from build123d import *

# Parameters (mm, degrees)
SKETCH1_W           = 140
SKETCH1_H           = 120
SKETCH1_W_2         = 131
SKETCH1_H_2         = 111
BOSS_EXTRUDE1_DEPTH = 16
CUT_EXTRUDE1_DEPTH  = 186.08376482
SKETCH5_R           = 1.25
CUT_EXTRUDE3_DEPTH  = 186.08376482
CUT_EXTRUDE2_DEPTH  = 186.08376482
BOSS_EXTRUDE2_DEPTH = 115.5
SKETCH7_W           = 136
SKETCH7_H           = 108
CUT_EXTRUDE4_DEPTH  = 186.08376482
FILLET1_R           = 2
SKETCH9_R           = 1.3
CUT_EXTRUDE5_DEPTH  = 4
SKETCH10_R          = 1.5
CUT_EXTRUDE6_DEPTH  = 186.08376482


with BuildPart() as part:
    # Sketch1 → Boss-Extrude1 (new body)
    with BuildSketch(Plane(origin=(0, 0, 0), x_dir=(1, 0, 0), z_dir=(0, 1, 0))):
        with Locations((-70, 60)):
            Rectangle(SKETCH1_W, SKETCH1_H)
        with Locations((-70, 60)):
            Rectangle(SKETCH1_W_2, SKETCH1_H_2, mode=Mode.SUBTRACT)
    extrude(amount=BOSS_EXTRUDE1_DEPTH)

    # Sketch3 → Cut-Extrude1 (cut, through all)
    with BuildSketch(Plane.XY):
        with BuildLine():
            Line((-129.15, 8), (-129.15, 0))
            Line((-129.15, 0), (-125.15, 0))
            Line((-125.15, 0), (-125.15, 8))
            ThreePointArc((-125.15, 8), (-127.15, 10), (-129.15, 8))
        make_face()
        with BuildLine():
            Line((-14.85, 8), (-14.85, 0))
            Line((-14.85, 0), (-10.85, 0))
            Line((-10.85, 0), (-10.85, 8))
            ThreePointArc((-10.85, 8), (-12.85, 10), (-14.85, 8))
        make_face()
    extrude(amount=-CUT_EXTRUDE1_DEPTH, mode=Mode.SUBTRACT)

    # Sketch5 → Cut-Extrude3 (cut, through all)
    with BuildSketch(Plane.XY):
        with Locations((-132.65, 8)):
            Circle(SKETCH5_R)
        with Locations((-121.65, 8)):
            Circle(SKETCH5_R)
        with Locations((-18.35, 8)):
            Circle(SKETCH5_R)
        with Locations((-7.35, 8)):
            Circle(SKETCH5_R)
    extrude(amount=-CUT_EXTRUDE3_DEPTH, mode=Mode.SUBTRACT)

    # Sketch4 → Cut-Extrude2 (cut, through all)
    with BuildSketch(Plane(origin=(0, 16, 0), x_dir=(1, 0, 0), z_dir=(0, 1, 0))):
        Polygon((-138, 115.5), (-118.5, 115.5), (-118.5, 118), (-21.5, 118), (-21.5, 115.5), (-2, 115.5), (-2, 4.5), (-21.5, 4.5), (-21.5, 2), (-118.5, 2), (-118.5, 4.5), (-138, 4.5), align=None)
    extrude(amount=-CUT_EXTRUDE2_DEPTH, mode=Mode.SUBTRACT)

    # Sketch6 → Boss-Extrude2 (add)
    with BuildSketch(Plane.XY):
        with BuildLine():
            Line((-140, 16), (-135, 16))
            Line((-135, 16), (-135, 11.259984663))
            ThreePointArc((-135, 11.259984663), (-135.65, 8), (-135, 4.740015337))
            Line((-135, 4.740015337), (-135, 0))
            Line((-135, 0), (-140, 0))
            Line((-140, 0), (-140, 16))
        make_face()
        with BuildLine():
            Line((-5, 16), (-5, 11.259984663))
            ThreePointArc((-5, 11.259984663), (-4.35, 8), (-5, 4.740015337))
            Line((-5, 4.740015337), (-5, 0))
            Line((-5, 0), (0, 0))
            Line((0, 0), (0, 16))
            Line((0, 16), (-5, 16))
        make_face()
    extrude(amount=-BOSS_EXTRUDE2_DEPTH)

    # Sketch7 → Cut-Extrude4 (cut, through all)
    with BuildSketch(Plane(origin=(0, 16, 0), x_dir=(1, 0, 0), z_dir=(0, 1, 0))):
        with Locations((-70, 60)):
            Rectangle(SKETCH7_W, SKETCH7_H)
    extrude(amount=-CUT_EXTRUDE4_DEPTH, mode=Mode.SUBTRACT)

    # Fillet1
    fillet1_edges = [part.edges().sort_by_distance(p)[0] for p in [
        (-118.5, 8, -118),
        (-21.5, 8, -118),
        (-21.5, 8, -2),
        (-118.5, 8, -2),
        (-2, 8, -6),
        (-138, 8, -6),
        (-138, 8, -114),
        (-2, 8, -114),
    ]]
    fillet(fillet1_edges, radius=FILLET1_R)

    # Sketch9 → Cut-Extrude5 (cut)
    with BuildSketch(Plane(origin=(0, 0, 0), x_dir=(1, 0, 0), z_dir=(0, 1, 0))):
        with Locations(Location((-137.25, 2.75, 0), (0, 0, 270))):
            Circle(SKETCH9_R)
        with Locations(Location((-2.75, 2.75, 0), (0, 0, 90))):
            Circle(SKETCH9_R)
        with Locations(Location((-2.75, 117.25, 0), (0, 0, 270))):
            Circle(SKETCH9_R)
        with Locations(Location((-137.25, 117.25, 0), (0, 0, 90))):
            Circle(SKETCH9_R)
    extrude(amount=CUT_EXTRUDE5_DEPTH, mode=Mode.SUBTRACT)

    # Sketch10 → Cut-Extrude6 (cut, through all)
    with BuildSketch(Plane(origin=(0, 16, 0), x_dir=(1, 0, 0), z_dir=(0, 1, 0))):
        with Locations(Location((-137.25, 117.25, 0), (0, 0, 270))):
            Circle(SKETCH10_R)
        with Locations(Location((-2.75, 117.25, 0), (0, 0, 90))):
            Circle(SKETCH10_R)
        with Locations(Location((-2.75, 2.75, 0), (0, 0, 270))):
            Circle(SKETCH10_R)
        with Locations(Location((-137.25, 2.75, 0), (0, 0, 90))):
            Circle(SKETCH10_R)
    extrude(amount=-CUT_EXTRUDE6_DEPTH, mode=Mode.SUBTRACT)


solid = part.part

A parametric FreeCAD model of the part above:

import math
import FreeCAD as App
import Part
import Sketcher

V = App.Vector
Q = App.Units.Quantity


def edges_at(feature, points):
    """Names of the edges that pass closest to the given points."""
    edges = feature.Shape.Edges
    near = lambda p: min(range(len(edges)), key=lambda i: edges[i].distToShape(Part.Vertex(*p))[0])
    return sorted({f"Edge{near(p) + 1}" for p in points})


def add_polygon(sketch, points):
    """Adds a closed chain of lines whose ends are joined by coincident constraints."""
    first, n = sketch.GeometryCount, len(points)
    for a, b in zip(points, points[1:] + points[:1]):
        sketch.addGeometry(Part.LineSegment(App.Vector(*a, 0), App.Vector(*b, 0)), False)
    for i in range(n):
        sketch.addConstraint(Sketcher.Constraint("Coincident", first + i, 2, first + (i + 1) % n, 1))

doc = App.newDocument("Part")
body = doc.addObject("PartDesign::Body", "Body")

# Sketch on XZ plane
sketch1 = body.newObject("Sketcher::SketchObject", "Sketch")
sketch1.AttachmentSupport = (doc.getObject("XZ_Plane"), [""])
sketch1.MapMode = "FlatFace"
add_polygon(sketch1, [(-140, -120), (-140, 0), (0, 0), (0, -120)])  # lines 0-3
add_polygon(sketch1, [(-4, -4), (-136, -4), (-136, -116), (-4, -116)])  # lines 4-7
sketch1.addConstraint([
    Sketcher.Constraint("Vertical", 0),
    Sketcher.Constraint("Horizontal", 1),
    Sketcher.Constraint("Vertical", 2),
    Sketcher.Constraint("Horizontal", 3),
    Sketcher.Constraint("Horizontal", 4),
    Sketcher.Constraint("Vertical", 5),
    Sketcher.Constraint("Horizontal", 6),
    Sketcher.Constraint("Vertical", 7),
    Sketcher.Constraint("Coincident", 1, 2, -1, 1),
    Sketcher.Constraint("DistanceX", 1, 1, 1, 2, Q("140 mm")),
    Sketcher.Constraint("DistanceX", 4, 2, 4, 1, Q("131 mm")),
    Sketcher.Constraint("DistanceY", 0, 1, 0, 2, Q("120 mm")),
    Sketcher.Constraint("DistanceY", 5, 2, 5, 1, Q("111 mm")),
    Sketcher.Constraint("DistanceX", 4, 2, -1, 1, Q("135.5 mm")),
    Sketcher.Constraint("DistanceY", 4, 2, -1, 1, Q("4.5 mm")),
])
pad1 = body.newObject("PartDesign::Pad", "Pad")
pad1.Profile = sketch1
pad1.Length = 16
pad1.Reversed = True

# Sketch on XY plane
sketch2 = body.newObject("Sketcher::SketchObject", "Sketch001")
sketch2.AttachmentSupport = (doc.getObject("XY_Plane"), [""])
sketch2.MapMode = "FlatFace"
sketch2.addGeometry([
    Part.LineSegment(V(-129.2, 8, 0), V(-129.2, 0, 0)),  # 0
    Part.LineSegment(V(-129.2, 0, 0), V(-125.2, 0, 0)),  # 1
    Part.LineSegment(V(-125.2, 0, 0), V(-125.2, 8, 0)),  # 2
    Part.ArcOfCircle(Part.Circle(V(-127.2, 8, 0), V(0, 0, 1), 2), math.radians(0), math.radians(180)),  # 3
    Part.LineSegment(V(-14.8, 8, 0), V(-14.8, 0, 0)),  # 4
    Part.LineSegment(V(-14.8, 0, 0), V(-10.8, 0, 0)),  # 5
    Part.LineSegment(V(-10.8, 0, 0), V(-10.8, 8, 0)),  # 6
    Part.ArcOfCircle(Part.Circle(V(-12.8, 8, 0), V(0, 0, 1), 2), math.radians(0), math.radians(180)),  # 7
], False)
sketch2.addConstraint([
    Sketcher.Constraint("Coincident", 0, 2, 1, 1),
    Sketcher.Constraint("Coincident", 1, 2, 2, 1),
    Sketcher.Constraint("Tangent", 2, 2, 3, 1),
    Sketcher.Constraint("Tangent", 3, 2, 0, 1),
    Sketcher.Constraint("Coincident", 4, 2, 5, 1),
    Sketcher.Constraint("Coincident", 5, 2, 6, 1),
    Sketcher.Constraint("Tangent", 6, 2, 7, 1),
    Sketcher.Constraint("Tangent", 7, 2, 4, 1),
    Sketcher.Constraint("Vertical", 0),
    Sketcher.Constraint("Horizontal", 1),
    Sketcher.Constraint("Vertical", 2),
    Sketcher.Constraint("Vertical", 4),
    Sketcher.Constraint("Horizontal", 5),
    Sketcher.Constraint("Vertical", 6),
    Sketcher.Constraint("Equal", 3, 7),
    Sketcher.Constraint("PointOnObject", 0, 2, -1),
    Sketcher.Constraint("PointOnObject", 4, 2, -1),
    Sketcher.Constraint("Horizontal", 3, 3, 7, 3),
    Sketcher.Constraint("Radius", 3, Q("2 mm")),
    Sketcher.Constraint("DistanceY", 0, 2, 0, 1, Q("8 mm")),
    Sketcher.Constraint("DistanceX", 3, 3, 7, 3, Q("114.3 mm")),
    Sketcher.Constraint("DistanceX", 3, 3, -1, 1, Q("127.15 mm")),
])
pocket1 = body.newObject("PartDesign::Pocket", "Pocket")
pocket1.Profile = sketch2
pocket1.Type = "ThroughAll"

# Sketch on XY plane
sketch3 = body.newObject("Sketcher::SketchObject", "Sketch002")
sketch3.AttachmentSupport = (doc.getObject("XY_Plane"), [""])
sketch3.MapMode = "FlatFace"
sketch3.addGeometry([
    Part.Circle(V(-132.7, 8, 0), V(0, 0, 1), 1.2),
    Part.Circle(V(-121.7, 8, 0), V(0, 0, 1), 1.2),
    Part.Circle(V(-18.4, 8, 0), V(0, 0, 1), 1.2),
    Part.Circle(V(-7.3, 8, 0), V(0, 0, 1), 1.2),
], False)
sketch3.addConstraint([
    Sketcher.Constraint("Equal", 0, 1),
    Sketcher.Constraint("Equal", 1, 2),
    Sketcher.Constraint("Equal", 2, 3),
    Sketcher.Constraint("Horizontal", 0, 3, 1, 3),
    Sketcher.Constraint("Horizontal", 1, 3, 2, 3),
    Sketcher.Constraint("Horizontal", 2, 3, 3, 3),
    Sketcher.Constraint("Diameter", 0, Q("2.5 mm")),
    Sketcher.Constraint("DistanceY", -1, 1, 0, 3, Q("8 mm")),
    Sketcher.Constraint("DistanceX", 0, 3, 1, 3, Q("11 mm")),
    Sketcher.Constraint("DistanceX", 2, 3, 3, 3, Q("11 mm")),
    Sketcher.Constraint("DistanceX", 1, 3, 2, 3, Q("103.3 mm")),
    Sketcher.Constraint("DistanceX", 0, 3, -1, 1, Q("132.65 mm")),
])
pocket2 = body.newObject("PartDesign::Pocket", "Pocket001")
pocket2.Profile = sketch3
pocket2.Type = "ThroughAll"

# Sketch on XZ plane
sketch4 = body.newObject("Sketcher::SketchObject", "Sketch003")
sketch4.AttachmentSupport = (doc.getObject("XZ_Plane"), [""])
sketch4.MapMode = "FlatFace"
sketch4.AttachmentOffset = App.Placement(V(0, 0, -16), App.Rotation())
add_polygon(sketch4, [(-118.5, -115.5), (-138, -115.5), (-138, -4.5), (-118.5, -4.5), (-118.5, -2), (-21.5, -2), (-21.5, -4.5), (-2, -4.5), (-2, -115.5), (-21.5, -115.5), (-21.5, -118), (-118.5, -118)])  # lines 0-11
sketch4.addConstraint([
    Sketcher.Constraint("Horizontal", 0),
    Sketcher.Constraint("Vertical", 1),
    Sketcher.Constraint("Horizontal", 2),
    Sketcher.Constraint("Vertical", 3),
    Sketcher.Constraint("Horizontal", 4),
    Sketcher.Constraint("Vertical", 5),
    Sketcher.Constraint("Horizontal", 6),
    Sketcher.Constraint("Vertical", 7),
    Sketcher.Constraint("Horizontal", 8),
    Sketcher.Constraint("Vertical", 9),
    Sketcher.Constraint("Horizontal", 10),
    Sketcher.Constraint("Vertical", 11),
    Sketcher.Constraint("Horizontal", 2, 2, 5, 2),
    Sketcher.Constraint("Horizontal", 0, 2, 7, 2),
    Sketcher.Constraint("Vertical", 5, 2, 8, 2),
    Sketcher.Constraint("Vertical", 3, 2, 10, 2),
    Sketcher.Constraint("Equal", 2, 6),
    Sketcher.Constraint("Equal", 5, 9),
    Sketcher.Constraint("DistanceX", 4, 1, 4, 2, Q("97 mm")),
    Sketcher.Constraint("DistanceY", 1, 1, 1, 2, Q("111 mm")),
    Sketcher.Constraint("DistanceX", 0, 2, 0, 1, Q("19.5 mm")),
    Sketcher.Constraint("DistanceY", 3, 1, 3, 2, Q("2.5 mm")),
    Sketcher.Constraint("DistanceX", 0, 2, -1, 1, Q("138 mm")),
    Sketcher.Constraint("DistanceY", 3, 2, -1, 1, Q("2 mm")),
])
pocket3 = body.newObject("PartDesign::Pocket", "Pocket002")
pocket3.Profile = sketch4
pocket3.Type = "ThroughAll"
pocket3.Reversed = True

# Sketch on XY plane
sketch5 = body.newObject("Sketcher::SketchObject", "Sketch004")
sketch5.AttachmentSupport = (doc.getObject("XY_Plane"), [""])
sketch5.MapMode = "FlatFace"
sketch5.addGeometry([
    Part.LineSegment(V(-135, 16, 0), V(-140, 16, 0)),  # 0
    Part.LineSegment(V(-140, 16, 0), V(-140, 0, 0)),  # 1
    Part.LineSegment(V(-140, 0, 0), V(-135, 0, 0)),  # 2
    Part.LineSegment(V(-135, 0, 0), V(-135, 4.7, 0)),  # 3
    Part.ArcOfCircle(Part.Circle(V(-127.1, 8, 0), V(0, 0, 1), 8.5), math.radians(157), math.radians(203)),  # 4
    Part.LineSegment(V(-135, 11.3, 0), V(-135, 16, 0)),  # 5
    Part.LineSegment(V(-5, 16, 0), V(-5, 11.3, 0)),  # 6
    Part.ArcOfCircle(Part.Circle(V(-12.9, 8, 0), V(0, 0, 1), 8.5), math.radians(-23), math.radians(23)),  # 7
    Part.LineSegment(V(-5, 4.7, 0), V(-5, 0, 0)),  # 8
    Part.LineSegment(V(-5, 0, 0), V(0, 0, 0)),  # 9
    Part.LineSegment(V(0, 0, 0), V(0, 16, 0)),  # 10
    Part.LineSegment(V(0, 16, 0), V(-5, 16, 0)),  # 11
], False)
sketch5.addConstraint([
    Sketcher.Constraint("Coincident", 0, 2, 1, 1),
    Sketcher.Constraint("Coincident", 1, 2, 2, 1),
    Sketcher.Constraint("Coincident", 2, 2, 3, 1),
    Sketcher.Constraint("Coincident", 3, 2, 4, 2),
    Sketcher.Constraint("Coincident", 4, 1, 5, 1),
    Sketcher.Constraint("Coincident", 5, 2, 0, 1),
    Sketcher.Constraint("Coincident", 6, 2, 7, 2),
    Sketcher.Constraint("Coincident", 7, 1, 8, 1),
    Sketcher.Constraint("Coincident", 8, 2, 9, 1),
    Sketcher.Constraint("Coincident", 9, 2, 10, 1),
    Sketcher.Constraint("Coincident", 10, 2, 11, 1),
    Sketcher.Constraint("Coincident", 11, 2, 6, 1),
    Sketcher.Constraint("Horizontal", 0),
    Sketcher.Constraint("Vertical", 1),
    Sketcher.Constraint("Horizontal", 2),
    Sketcher.Constraint("Vertical", 3),
    Sketcher.Constraint("Vertical", 5),
    Sketcher.Constraint("Vertical", 6),
    Sketcher.Constraint("Vertical", 8),
    Sketcher.Constraint("Horizontal", 9),
    Sketcher.Constraint("Vertical", 10),
    Sketcher.Constraint("Horizontal", 11),
    Sketcher.Constraint("Coincident", 9, 2, -1, 1),
    Sketcher.Constraint("Equal", 4, 7),
    Sketcher.Constraint("PointOnObject", 1, 2, -1),
    Sketcher.Constraint("Horizontal", 4, 3, 7, 3),
    Sketcher.Constraint("Horizontal", 4, 1, 6, 2),
    Sketcher.Constraint("Horizontal", 3, 2, 7, 1),
    Sketcher.Constraint("Horizontal", 5, 2, 10, 2),
    Sketcher.Constraint("Vertical", 3, 2, 4, 1),
    Sketcher.Constraint("Equal", 2, 9),
    Sketcher.Constraint("Equal", 3, 5),
    Sketcher.Constraint("Radius", 4, Q("8.5 mm")),
    Sketcher.Constraint("DistanceX", 0, 2, 0, 1, Q("5 mm")),
    Sketcher.Constraint("DistanceY", 1, 2, 1, 1, Q("16 mm")),
    Sketcher.Constraint("DistanceX", 0, 2, -1, 1, Q("140 mm")),
    Sketcher.Constraint("DistanceX", 4, 3, 7, 3, Q("114.3 mm")),
])
pad2 = body.newObject("PartDesign::Pad", "Pad001")
pad2.Profile = sketch5
pad2.Length = 115.5
pad2.Reversed = True

# Sketch on XZ plane
sketch6 = body.newObject("Sketcher::SketchObject", "Sketch005")
sketch6.AttachmentSupport = (doc.getObject("XZ_Plane"), [""])
sketch6.MapMode = "FlatFace"
sketch6.AttachmentOffset = App.Placement(V(0, 0, -16), App.Rotation())
add_polygon(sketch6, [(-138, -114), (-138, -6), (-2, -6), (-2, -114)])  # lines 0-3
sketch6.addConstraint([
    Sketcher.Constraint("Vertical", 0),
    Sketcher.Constraint("Horizontal", 1),
    Sketcher.Constraint("Vertical", 2),
    Sketcher.Constraint("Horizontal", 3),
    Sketcher.Constraint("DistanceX", 1, 1, 1, 2, Q("136 mm")),
    Sketcher.Constraint("DistanceY", 0, 1, 0, 2, Q("108 mm")),
    Sketcher.Constraint("DistanceX", 0, 2, -1, 1, Q("138 mm")),
    Sketcher.Constraint("DistanceY", 0, 2, -1, 1, Q("6 mm")),
])
pocket4 = body.newObject("PartDesign::Pocket", "Pocket003")
pocket4.Profile = sketch6
pocket4.Type = "ThroughAll"
pocket4.Reversed = True
doc.recompute()

fillet = body.newObject("PartDesign::Fillet", "Fillet")
fillet.Base = (pocket4, edges_at(pocket4, [
    (-118.5, 8, -118),
    (-21.5, 8, -118),
    (-21.5, 8, -2),
    (-118.5, 8, -2),
    (-2, 8, -6),
    (-138, 8, -6),
    (-138, 8, -114),
    (-2, 8, -114),
]))
fillet.Radius = 2

# Sketch on XZ plane
sketch7 = body.newObject("Sketcher::SketchObject", "Sketch006")
sketch7.AttachmentSupport = (doc.getObject("XZ_Plane"), [""])
sketch7.MapMode = "FlatFace"
sketch7.addGeometry([
    Part.Circle(V(-137.2, -2.8, 0), V(0, 0, 1), 1.3),
    Part.Circle(V(-2.8, -2.8, 0), V(0, 0, 1), 1.3),
    Part.Circle(V(-2.8, -117.2, 0), V(0, 0, 1), 1.3),
    Part.Circle(V(-137.2, -117.2, 0), V(0, 0, 1), 1.3),
], False)
sketch7.addConstraint([
    Sketcher.Constraint("Equal", 0, 1),
    Sketcher.Constraint("Equal", 1, 2),
    Sketcher.Constraint("Equal", 2, 3),
    Sketcher.Constraint("Horizontal", 0, 3, 1, 3),
    Sketcher.Constraint("Horizontal", 2, 3, 3, 3),
    Sketcher.Constraint("Vertical", 1, 3, 2, 3),
    Sketcher.Constraint("Vertical", 0, 3, 3, 3),
    Sketcher.Constraint("Diameter", 0, Q("2.6 mm")),
    Sketcher.Constraint("DistanceX", 0, 3, 1, 3, Q("134.5 mm")),
    Sketcher.Constraint("DistanceY", 2, 3, 1, 3, Q("114.5 mm")),
    Sketcher.Constraint("DistanceX", 0, 3, -1, 1, Q("137.25 mm")),
    Sketcher.Constraint("DistanceY", 0, 3, -1, 1, Q("2.75 mm")),
])
pocket5 = body.newObject("PartDesign::Pocket", "Pocket004")
pocket5.Profile = sketch7
pocket5.Length = 4

# Sketch on XZ plane
sketch8 = body.newObject("Sketcher::SketchObject", "Sketch007")
sketch8.AttachmentSupport = (doc.getObject("XZ_Plane"), [""])
sketch8.MapMode = "FlatFace"
sketch8.AttachmentOffset = App.Placement(V(0, 0, -16), App.Rotation())
sketch8.addGeometry([
    Part.Circle(V(-137.2, -117.2, 0), V(0, 0, 1), 1.5),
    Part.Circle(V(-2.8, -117.2, 0), V(0, 0, 1), 1.5),
    Part.Circle(V(-2.8, -2.8, 0), V(0, 0, 1), 1.5),
    Part.Circle(V(-137.2, -2.8, 0), V(0, 0, 1), 1.5),
], False)
sketch8.addConstraint([
    Sketcher.Constraint("Equal", 0, 1),
    Sketcher.Constraint("Equal", 1, 2),
    Sketcher.Constraint("Equal", 2, 3),
    Sketcher.Constraint("Horizontal", 0, 3, 1, 3),
    Sketcher.Constraint("Horizontal", 2, 3, 3, 3),
    Sketcher.Constraint("Vertical", 1, 3, 2, 3),
    Sketcher.Constraint("Vertical", 0, 3, 3, 3),
    Sketcher.Constraint("Diameter", 0, Q("3 mm")),
    Sketcher.Constraint("DistanceX", 0, 3, 1, 3, Q("134.5 mm")),
    Sketcher.Constraint("DistanceY", 1, 3, 2, 3, Q("114.5 mm")),
    Sketcher.Constraint("DistanceX", 0, 3, -1, 1, Q("137.25 mm")),
    Sketcher.Constraint("DistanceY", 0, 3, -1, 1, Q("117.25 mm")),
])
pocket6 = body.newObject("PartDesign::Pocket", "Pocket005")
pocket6.Profile = sketch8
pocket6.Type = "ThroughAll"
pocket6.Reversed = True

doc.recompute()
